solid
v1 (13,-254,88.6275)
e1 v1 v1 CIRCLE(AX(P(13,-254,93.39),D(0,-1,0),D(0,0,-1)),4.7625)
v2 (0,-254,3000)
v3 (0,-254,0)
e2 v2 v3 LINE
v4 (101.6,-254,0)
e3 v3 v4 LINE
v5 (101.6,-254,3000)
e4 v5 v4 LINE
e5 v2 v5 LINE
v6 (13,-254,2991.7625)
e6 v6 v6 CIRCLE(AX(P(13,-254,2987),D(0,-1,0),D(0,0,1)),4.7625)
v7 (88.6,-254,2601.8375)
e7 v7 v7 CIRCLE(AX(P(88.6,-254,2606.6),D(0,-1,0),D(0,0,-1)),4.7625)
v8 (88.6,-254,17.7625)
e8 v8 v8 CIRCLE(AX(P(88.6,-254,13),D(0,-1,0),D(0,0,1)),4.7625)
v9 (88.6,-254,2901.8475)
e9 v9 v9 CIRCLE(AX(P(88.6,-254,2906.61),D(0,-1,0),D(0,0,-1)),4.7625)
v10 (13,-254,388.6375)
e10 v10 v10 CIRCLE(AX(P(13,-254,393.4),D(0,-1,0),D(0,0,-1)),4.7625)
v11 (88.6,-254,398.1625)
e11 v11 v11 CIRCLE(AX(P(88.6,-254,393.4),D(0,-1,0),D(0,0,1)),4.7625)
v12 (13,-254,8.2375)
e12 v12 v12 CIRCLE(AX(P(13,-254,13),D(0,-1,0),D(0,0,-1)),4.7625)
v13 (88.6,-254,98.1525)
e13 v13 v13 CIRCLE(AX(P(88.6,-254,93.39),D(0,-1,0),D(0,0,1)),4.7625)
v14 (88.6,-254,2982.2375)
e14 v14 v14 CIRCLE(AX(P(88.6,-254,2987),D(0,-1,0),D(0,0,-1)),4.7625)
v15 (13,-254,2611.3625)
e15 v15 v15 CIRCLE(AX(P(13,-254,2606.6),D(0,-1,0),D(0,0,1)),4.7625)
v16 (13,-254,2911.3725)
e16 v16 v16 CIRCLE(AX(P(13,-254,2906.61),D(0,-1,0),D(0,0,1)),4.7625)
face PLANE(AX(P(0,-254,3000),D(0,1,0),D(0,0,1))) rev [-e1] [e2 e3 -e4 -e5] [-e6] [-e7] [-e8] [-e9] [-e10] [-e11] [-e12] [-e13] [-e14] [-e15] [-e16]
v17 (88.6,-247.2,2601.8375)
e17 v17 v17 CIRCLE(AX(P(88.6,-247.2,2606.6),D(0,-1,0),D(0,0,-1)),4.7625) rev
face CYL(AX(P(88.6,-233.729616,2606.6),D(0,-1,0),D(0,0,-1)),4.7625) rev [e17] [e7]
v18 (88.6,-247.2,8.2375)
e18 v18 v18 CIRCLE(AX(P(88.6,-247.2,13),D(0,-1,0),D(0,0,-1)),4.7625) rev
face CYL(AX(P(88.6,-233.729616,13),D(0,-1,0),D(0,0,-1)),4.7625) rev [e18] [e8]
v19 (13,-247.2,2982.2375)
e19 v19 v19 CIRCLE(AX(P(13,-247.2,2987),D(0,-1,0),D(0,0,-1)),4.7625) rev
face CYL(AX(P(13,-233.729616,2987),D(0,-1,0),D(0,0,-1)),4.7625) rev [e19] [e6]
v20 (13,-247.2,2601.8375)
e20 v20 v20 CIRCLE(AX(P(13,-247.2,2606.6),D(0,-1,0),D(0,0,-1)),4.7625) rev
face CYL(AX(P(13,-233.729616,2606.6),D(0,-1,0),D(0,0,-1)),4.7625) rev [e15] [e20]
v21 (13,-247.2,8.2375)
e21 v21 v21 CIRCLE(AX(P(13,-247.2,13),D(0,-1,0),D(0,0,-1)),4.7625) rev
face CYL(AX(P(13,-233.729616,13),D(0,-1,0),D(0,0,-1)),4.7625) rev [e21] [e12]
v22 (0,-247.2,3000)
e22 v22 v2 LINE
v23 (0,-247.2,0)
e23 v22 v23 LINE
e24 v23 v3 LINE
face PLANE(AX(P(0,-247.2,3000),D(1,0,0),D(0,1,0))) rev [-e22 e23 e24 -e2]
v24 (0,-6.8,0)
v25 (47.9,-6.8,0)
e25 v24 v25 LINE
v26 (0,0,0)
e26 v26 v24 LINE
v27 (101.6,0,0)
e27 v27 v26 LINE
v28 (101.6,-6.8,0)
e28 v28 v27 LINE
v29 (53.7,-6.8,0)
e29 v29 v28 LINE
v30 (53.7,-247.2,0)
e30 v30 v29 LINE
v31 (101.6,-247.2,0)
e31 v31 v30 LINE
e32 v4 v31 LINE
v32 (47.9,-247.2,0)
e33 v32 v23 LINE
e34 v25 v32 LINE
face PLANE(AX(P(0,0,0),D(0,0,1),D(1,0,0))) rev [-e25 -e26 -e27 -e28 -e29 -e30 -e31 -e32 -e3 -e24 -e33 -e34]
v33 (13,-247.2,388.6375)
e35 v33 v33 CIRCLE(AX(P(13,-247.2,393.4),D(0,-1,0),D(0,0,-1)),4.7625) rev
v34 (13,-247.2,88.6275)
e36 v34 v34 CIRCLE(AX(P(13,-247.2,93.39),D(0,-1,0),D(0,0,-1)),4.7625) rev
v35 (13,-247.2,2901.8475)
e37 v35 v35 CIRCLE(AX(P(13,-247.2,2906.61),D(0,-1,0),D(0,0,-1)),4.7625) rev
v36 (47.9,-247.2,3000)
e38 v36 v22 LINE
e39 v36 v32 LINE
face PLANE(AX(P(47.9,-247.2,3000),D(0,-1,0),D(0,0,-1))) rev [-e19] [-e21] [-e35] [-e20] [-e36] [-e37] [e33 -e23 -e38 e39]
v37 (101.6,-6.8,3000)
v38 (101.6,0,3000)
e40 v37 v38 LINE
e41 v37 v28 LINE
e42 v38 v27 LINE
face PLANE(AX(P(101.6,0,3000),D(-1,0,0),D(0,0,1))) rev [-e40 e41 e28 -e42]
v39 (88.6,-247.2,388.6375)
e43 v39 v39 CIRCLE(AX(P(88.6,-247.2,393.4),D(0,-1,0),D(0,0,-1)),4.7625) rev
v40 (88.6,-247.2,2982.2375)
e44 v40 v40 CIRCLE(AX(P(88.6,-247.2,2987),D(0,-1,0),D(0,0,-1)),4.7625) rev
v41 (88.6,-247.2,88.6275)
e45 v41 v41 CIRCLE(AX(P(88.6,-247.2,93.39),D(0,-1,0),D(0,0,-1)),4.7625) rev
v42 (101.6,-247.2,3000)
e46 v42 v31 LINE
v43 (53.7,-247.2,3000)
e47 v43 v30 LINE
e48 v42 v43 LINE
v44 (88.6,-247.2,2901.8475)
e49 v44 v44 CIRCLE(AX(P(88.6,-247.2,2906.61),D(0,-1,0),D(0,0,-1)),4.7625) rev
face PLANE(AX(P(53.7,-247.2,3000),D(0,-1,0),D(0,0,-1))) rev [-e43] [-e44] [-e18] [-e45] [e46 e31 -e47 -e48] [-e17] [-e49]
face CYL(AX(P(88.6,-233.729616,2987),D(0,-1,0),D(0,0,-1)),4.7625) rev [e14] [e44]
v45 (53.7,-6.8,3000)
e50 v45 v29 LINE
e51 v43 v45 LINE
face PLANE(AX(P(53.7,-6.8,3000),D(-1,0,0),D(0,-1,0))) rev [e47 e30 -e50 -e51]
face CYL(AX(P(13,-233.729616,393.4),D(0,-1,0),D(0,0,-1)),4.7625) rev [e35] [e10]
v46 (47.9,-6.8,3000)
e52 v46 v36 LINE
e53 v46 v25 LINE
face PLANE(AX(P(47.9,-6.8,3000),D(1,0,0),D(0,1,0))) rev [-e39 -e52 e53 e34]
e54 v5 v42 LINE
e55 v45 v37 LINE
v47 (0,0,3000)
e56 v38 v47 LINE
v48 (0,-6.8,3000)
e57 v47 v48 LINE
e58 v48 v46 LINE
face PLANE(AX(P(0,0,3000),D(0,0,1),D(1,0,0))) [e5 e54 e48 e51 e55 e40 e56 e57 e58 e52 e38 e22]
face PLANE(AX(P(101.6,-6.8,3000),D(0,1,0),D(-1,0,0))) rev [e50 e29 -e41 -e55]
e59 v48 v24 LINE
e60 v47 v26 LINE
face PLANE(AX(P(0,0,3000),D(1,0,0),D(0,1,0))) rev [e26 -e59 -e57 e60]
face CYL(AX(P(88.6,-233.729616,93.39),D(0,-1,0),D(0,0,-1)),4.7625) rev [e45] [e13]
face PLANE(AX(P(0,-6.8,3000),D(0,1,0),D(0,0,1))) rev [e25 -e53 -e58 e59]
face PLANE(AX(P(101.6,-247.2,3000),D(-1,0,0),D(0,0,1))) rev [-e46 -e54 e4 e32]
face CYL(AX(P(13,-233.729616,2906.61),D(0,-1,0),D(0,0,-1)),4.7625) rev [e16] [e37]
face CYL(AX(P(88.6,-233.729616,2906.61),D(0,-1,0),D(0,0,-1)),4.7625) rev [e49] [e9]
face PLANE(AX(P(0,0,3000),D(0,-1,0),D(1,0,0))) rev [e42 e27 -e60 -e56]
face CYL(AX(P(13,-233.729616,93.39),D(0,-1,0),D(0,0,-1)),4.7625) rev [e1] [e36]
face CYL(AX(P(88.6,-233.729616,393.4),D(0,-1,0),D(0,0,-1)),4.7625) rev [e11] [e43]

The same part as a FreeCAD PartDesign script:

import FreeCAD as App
import Part
import Sketcher

V = App.Vector

doc = App.newDocument("Part")
body = doc.addObject("PartDesign::Body", "Body")

sketch1 = doc.addObject("Sketcher::SketchObject", "Sketch")
body.addObject(sketch1)
sketch1.AttachmentSupport = (doc.XY_Plane, [""])
sketch1.MapMode = "FlatFace"
sketch1.addGeometry(Part.LineSegment(V(102, 0, 0), V(0, 0, 0)), False)
sketch1.addGeometry(Part.LineSegment(V(0, 0, 0), V(0, -7, 0)), False)
sketch1.addGeometry(Part.LineSegment(V(0, -7, 0), V(48, -7, 0)), False)
sketch1.addGeometry(Part.LineSegment(V(48, -7, 0), V(48, -247, 0)), False)
sketch1.addGeometry(Part.LineSegment(V(48, -247, 0), V(0, -247, 0)), False)
sketch1.addGeometry(Part.LineSegment(V(0, -247, 0), V(0, -254, 0)), False)
sketch1.addGeometry(Part.LineSegment(V(0, -254, 0), V(102, -254, 0)), False)
sketch1.addGeometry(Part.LineSegment(V(102, -254, 0), V(102, -247, 0)), False)
sketch1.addGeometry(Part.LineSegment(V(102, -247, 0), V(54, -247, 0)), False)
sketch1.addGeometry(Part.LineSegment(V(54, -247, 0), V(54, -7, 0)), False)
sketch1.addGeometry(Part.LineSegment(V(54, -7, 0), V(102, -7, 0)), False)
sketch1.addGeometry(Part.LineSegment(V(102, -7, 0), V(102, 0, 0)), False)
sketch1.addConstraint(Sketcher.Constraint("Coincident", 0, 2, 1, 1))
sketch1.addConstraint(Sketcher.Constraint("Coincident", 1, 2, 2, 1))
sketch1.addConstraint(Sketcher.Constraint("Coincident", 2, 2, 3, 1))
sketch1.addConstraint(Sketcher.Constraint("Coincident", 3, 2, 4, 1))
sketch1.addConstraint(Sketcher.Constraint("Coincident", 4, 2, 5, 1))
sketch1.addConstraint(Sketcher.Constraint("Coincident", 5, 2, 6, 1))
sketch1.addConstraint(Sketcher.Constraint("Coincident", 6, 2, 7, 1))
sketch1.addConstraint(Sketcher.Constraint("Coincident", 7, 2, 8, 1))
sketch1.addConstraint(Sketcher.Constraint("Coincident", 8, 2, 9, 1))
sketch1.addConstraint(Sketcher.Constraint("Coincident", 9, 2, 10, 1))
sketch1.addConstraint(Sketcher.Constraint("Coincident", 10, 2, 11, 1))
sketch1.addConstraint(Sketcher.Constraint("Coincident", 11, 2, 0, 1))
sketch1.addConstraint(Sketcher.Constraint("Horizontal", 0))
sketch1.addConstraint(Sketcher.Constraint("Vertical", 1))
sketch1.addConstraint(Sketcher.Constraint("Horizontal", 2))
sketch1.addConstraint(Sketcher.Constraint("Vertical", 3))
sketch1.addConstraint(Sketcher.Constraint("Horizontal", 4))
sketch1.addConstraint(Sketcher.Constraint("Vertical", 5))
sketch1.addConstraint(Sketcher.Constraint("Horizontal", 6))
sketch1.addConstraint(Sketcher.Constraint("Vertical", 7))
sketch1.addConstraint(Sketcher.Constraint("Horizontal", 8))
sketch1.addConstraint(Sketcher.Constraint("Vertical", 9))
sketch1.addConstraint(Sketcher.Constraint("Horizontal", 10))
sketch1.addConstraint(Sketcher.Constraint("Vertical", 11))
sketch1.addConstraint(Sketcher.Constraint("Coincident", 0, 2, -1, 1))
sketch1.addConstraint(Sketcher.Constraint("PointOnObject", 4, 2, -2))
sketch1.addConstraint(Sketcher.Constraint("Horizontal", 4, 2, 7, 2))
sketch1.addConstraint(Sketcher.Constraint("Horizontal", 2, 2, 9, 2))
sketch1.addConstraint(Sketcher.Constraint("Vertical", 7, 2, 10, 2))
sketch1.addConstraint(Sketcher.Constraint("Equal", 4, 8))
sketch1.addConstraint(Sketcher.Constraint("Equal", 1, 5))
sketch1.addConstraint(Sketcher.Constraint("DistanceX", 0, 2, 0, 1, 101.6))
sketch1.addConstraint(Sketcher.Constraint("DistanceX", 2, 1, 2, 2, 47.9))
sketch1.addConstraint(Sketcher.Constraint("DistanceY", 1, 2, 1, 1, 6.8))
sketch1.addConstraint(Sketcher.Constraint("DistanceY", 3, 2, 3, 1, 240.4))
pad1 = doc.addObject("PartDesign::Pad", "Pad")
body.addObject(pad1)
pad1.Profile = sketch1
pad1.Length = 3000

sketch2 = doc.addObject("Sketcher::SketchObject", "Sketch001")
body.addObject(sketch2)
sketch2.AttachmentSupport = (doc.XZ_Plane, [""])
sketch2.MapMode = "FlatFace"
sketch2.AttachmentOffset = App.Placement(V(0, 0, 254), App.Rotation())
sketch2.addGeometry(Part.Circle(V(88.6, 2987, 0), V(0, 0, 1), 4.8), False)
sketch2.addGeometry(Part.Circle(V(88.6, 2906.6, 0), V(0, 0, 1), 4.8), False)
sketch2.addGeometry(Part.Circle(V(13, 2906.6, 0), V(0, 0, 1), 4.8), False)
sketch2.addGeometry(Part.Circle(V(13, 2987, 0), V(0, 0, 1), 4.8), False)
sketch2.addGeometry(Part.Circle(V(13, 13, 0), V(0, 0, 1), 4.8), False)
sketch2.addGeometry(Part.Circle(V(13, 93.4, 0), V(0, 0, 1), 4.8), False)
sketch2.addGeometry(Part.Circle(V(88.6, 93.4, 0), V(0, 0, 1), 4.8), False)
sketch2.addGeometry(Part.Circle(V(88.6, 13, 0), V(0, 0, 1), 4.8), False)
sketch2.addGeometry(Part.Circle(V(88.6, 2606.6, 0), V(0, 0, 1), 4.8), False)
sketch2.addGeometry(Part.Circle(V(13, 2606.6, 0), V(0, 0, 1), 4.8), False)
sketch2.addGeometry(Part.Circle(V(13, 393.4, 0), V(0, 0, 1), 4.8), False)
sketch2.addGeometry(Part.Circle(V(88.6, 393.4, 0), V(0, 0, 1), 4.8), False)
sketch2.addConstraint(Sketcher.Constraint("Equal", 0, 1))
sketch2.addConstraint(Sketcher.Constraint("Equal", 1, 2))
sketch2.addConstraint(Sketcher.Constraint("Equal", 2, 3))
sketch2.addConstraint(Sketcher.Constraint("Equal", 3, 4))
sketch2.addConstraint(Sketcher.Constraint("Equal", 4, 5))
sketch2.addConstraint(Sketcher.Constraint("Equal", 5, 6))
sketch2.addConstraint(Sketcher.Constraint("Equal", 6, 7))
sketch2.addConstraint(Sketcher.Constraint("Equal", 7, 8))
sketch2.addConstraint(Sketcher.Constraint("Equal", 8, 9))
sketch2.addConstraint(Sketcher.Constraint("Equal", 9, 10))
sketch2.addConstraint(Sketcher.Constraint("Equal", 10, 11))
sketch2.addConstraint(Sketcher.Constraint("Horizontal", 1, 3, 2, 3))
sketch2.addConstraint(Sketcher.Constraint("Horizontal", 0, 3, 3, 3))
sketch2.addConstraint(Sketcher.Constraint("Horizontal", 5, 3, 6, 3))
sketch2.addConstraint(Sketcher.Constraint("Horizontal", 4, 3, 7, 3))
sketch2.addConstraint(Sketcher.Constraint("Horizontal", 8, 3, 9, 3))
sketch2.addConstraint(Sketcher.Constraint("Horizontal", 10, 3, 11, 3))
sketch2.addConstraint(Sketcher.Constraint("Vertical", 0, 3, 1, 3))
sketch2.addConstraint(Sketcher.Constraint("Vertical", 2, 3, 3, 3))
sketch2.addConstraint(Sketcher.Constraint("Vertical", 3, 3, 4, 3))
sketch2.addConstraint(Sketcher.Constraint("Vertical", 4, 3, 5, 3))
sketch2.addConstraint(Sketcher.Constraint("Vertical", 1, 3, 6, 3))
sketch2.addConstraint(Sketcher.Constraint("Vertical", 6, 3, 7, 3))
sketch2.addConstraint(Sketcher.Constraint("Vertical", 7, 3, 8, 3))
sketch2.addConstraint(Sketcher.Constraint("Vertical", 5, 3, 9, 3))
sketch2.addConstraint(Sketcher.Constraint("Vertical", 9, 3, 10, 3))
sketch2.addConstraint(Sketcher.Constraint("Vertical", 8, 3, 11, 3))
sketch2.addConstraint(Sketcher.Constraint("Diameter", 0, 9.525))
sketch2.addConstraint(Sketcher.Constraint("DistanceY", -1, 1, 0, 3, 2987.0))
sketch2.addConstraint(Sketcher.Constraint("DistanceX", -1, 1, 2, 3, 13.0))
sketch2.addConstraint(Sketcher.Constraint("DistanceY", -1, 1, 4, 3, 13.0))
sketch2.addConstraint(Sketcher.Constraint("DistanceX", -1, 1, 0, 3, 88.6))
sketch2.addConstraint(Sketcher.Constraint("DistanceY", -1, 1, 8, 3, 2606.6))
sketch2.addConstraint(Sketcher.Constraint("DistanceY", -1, 1, 10, 3, 393.4))
sketch2.addConstraint(Sketcher.Constraint("DistanceY", -1, 1, 1, 3, 2906.61))
sketch2.addConstraint(Sketcher.Constraint("DistanceY", -1, 1, 5, 3, 93.39))
pocket1 = doc.addObject("PartDesign::Pocket", "Pocket")
body.addObject(pocket1)
pocket1.Profile = sketch2
pocket1.Length = 6.8

doc.recompute()
